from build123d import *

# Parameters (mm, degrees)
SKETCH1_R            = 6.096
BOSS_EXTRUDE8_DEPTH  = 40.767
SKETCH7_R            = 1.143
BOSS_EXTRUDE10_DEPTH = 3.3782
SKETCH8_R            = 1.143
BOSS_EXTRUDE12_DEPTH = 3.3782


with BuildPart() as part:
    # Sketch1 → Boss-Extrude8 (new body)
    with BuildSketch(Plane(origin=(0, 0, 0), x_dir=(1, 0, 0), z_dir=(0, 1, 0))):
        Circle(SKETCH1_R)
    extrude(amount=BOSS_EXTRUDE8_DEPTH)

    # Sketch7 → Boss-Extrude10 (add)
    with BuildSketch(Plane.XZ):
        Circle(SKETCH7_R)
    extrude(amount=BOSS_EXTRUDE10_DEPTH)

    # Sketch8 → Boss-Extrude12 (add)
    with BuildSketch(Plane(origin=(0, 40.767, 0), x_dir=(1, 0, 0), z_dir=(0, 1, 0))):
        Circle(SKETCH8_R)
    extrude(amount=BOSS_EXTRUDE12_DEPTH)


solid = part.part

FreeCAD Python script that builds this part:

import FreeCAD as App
import Part
import Sketcher

V = App.Vector
Q = App.Units.Quantity

doc = App.newDocument("Part")
params = doc.addObject("Spreadsheet::Sheet", "Params")
for row, (alias, value) in enumerate([
    ("sketch1_diameter", "0.48 in"),
    ("pad1_length", "1.605 in"),
    ("sketch2_diameter", "0.09 in"),
    ("pad2_length", "0.133 in"),
    ("sketch3_diameter", "0.09 in"),
    ("pad3_length", "0.133 in"),
], start=1):
    params.set(f"A{row}", alias)
    params.set(f"B{row}", "=" + value)
    params.setAlias(f"B{row}", alias)

body = doc.addObject("PartDesign::Body", "Body")

# Sketch on XZ plane
sketch1 = body.newObject("Sketcher::SketchObject", "Sketch")
sketch1.AttachmentSupport = (doc.getObject("XZ_Plane"), [""])
sketch1.MapMode = "FlatFace"
sketch1.addGeometry(Part.Circle(V(0, 0, 0), V(0, 0, 1), 6), False)
sketch1.addConstraint([
    Sketcher.Constraint("Coincident", 0, 3, -1, 1),
    Sketcher.Constraint("Diameter", 0, Q("0.48 in")),
])
sketch1.setExpression("Constraints[1]", "Params.sketch1_diameter")
pad1 = body.newObject("PartDesign::Pad", "Pad")
pad1.Profile = sketch1
pad1.setExpression("Length", "Params.pad1_length")
pad1.Reversed = True

# Sketch on XZ plane
sketch2 = body.newObject("Sketcher::SketchObject", "Sketch001")
sketch2.AttachmentSupport = (doc.getObject("XZ_Plane"), [""])
sketch2.MapMode = "FlatFace"
sketch2.addGeometry(Part.Circle(V(0, 0, 0), V(0, 0, 1), 1.1), False)
sketch2.addConstraint([
    Sketcher.Constraint("Coincident", 0, 3, -1, 1),
    Sketcher.Constraint("Diameter", 0, Q("0.09 in")),
])
sketch2.setExpression("Constraints[1]", "Params.sketch2_diameter")
pad2 = body.newObject("PartDesign::Pad", "Pad001")
pad2.Profile = sketch2
pad2.setExpression("Length", "Params.pad2_length")

# Sketch on XZ plane
sketch3 = body.newObject("Sketcher::SketchObject", "Sketch002")
sketch3.AttachmentSupport = (doc.getObject("XZ_Plane"), [""])
sketch3.MapMode = "FlatFace"
sketch3.AttachmentOffset = App.Placement(V(0, 0, -1.605 * 25.4), App.Rotation())
sketch3.addGeometry(Part.Circle(V(0, 0, 0), V(0, 0, 1), 1.1), False)
sketch3.addConstraint([
    Sketcher.Constraint("Coincident", 0, 3, -1, 1),
    Sketcher.Constraint("Diameter", 0, Q("0.09 in")),
])
sketch3.setExpression("Constraints[1]", "Params.sketch3_diameter")
pad3 = body.newObject("PartDesign::Pad", "Pad002")
pad3.Profile = sketch3
pad3.setExpression("Length", "Params.pad3_length")
pad3.Reversed = True

doc.recompute()
